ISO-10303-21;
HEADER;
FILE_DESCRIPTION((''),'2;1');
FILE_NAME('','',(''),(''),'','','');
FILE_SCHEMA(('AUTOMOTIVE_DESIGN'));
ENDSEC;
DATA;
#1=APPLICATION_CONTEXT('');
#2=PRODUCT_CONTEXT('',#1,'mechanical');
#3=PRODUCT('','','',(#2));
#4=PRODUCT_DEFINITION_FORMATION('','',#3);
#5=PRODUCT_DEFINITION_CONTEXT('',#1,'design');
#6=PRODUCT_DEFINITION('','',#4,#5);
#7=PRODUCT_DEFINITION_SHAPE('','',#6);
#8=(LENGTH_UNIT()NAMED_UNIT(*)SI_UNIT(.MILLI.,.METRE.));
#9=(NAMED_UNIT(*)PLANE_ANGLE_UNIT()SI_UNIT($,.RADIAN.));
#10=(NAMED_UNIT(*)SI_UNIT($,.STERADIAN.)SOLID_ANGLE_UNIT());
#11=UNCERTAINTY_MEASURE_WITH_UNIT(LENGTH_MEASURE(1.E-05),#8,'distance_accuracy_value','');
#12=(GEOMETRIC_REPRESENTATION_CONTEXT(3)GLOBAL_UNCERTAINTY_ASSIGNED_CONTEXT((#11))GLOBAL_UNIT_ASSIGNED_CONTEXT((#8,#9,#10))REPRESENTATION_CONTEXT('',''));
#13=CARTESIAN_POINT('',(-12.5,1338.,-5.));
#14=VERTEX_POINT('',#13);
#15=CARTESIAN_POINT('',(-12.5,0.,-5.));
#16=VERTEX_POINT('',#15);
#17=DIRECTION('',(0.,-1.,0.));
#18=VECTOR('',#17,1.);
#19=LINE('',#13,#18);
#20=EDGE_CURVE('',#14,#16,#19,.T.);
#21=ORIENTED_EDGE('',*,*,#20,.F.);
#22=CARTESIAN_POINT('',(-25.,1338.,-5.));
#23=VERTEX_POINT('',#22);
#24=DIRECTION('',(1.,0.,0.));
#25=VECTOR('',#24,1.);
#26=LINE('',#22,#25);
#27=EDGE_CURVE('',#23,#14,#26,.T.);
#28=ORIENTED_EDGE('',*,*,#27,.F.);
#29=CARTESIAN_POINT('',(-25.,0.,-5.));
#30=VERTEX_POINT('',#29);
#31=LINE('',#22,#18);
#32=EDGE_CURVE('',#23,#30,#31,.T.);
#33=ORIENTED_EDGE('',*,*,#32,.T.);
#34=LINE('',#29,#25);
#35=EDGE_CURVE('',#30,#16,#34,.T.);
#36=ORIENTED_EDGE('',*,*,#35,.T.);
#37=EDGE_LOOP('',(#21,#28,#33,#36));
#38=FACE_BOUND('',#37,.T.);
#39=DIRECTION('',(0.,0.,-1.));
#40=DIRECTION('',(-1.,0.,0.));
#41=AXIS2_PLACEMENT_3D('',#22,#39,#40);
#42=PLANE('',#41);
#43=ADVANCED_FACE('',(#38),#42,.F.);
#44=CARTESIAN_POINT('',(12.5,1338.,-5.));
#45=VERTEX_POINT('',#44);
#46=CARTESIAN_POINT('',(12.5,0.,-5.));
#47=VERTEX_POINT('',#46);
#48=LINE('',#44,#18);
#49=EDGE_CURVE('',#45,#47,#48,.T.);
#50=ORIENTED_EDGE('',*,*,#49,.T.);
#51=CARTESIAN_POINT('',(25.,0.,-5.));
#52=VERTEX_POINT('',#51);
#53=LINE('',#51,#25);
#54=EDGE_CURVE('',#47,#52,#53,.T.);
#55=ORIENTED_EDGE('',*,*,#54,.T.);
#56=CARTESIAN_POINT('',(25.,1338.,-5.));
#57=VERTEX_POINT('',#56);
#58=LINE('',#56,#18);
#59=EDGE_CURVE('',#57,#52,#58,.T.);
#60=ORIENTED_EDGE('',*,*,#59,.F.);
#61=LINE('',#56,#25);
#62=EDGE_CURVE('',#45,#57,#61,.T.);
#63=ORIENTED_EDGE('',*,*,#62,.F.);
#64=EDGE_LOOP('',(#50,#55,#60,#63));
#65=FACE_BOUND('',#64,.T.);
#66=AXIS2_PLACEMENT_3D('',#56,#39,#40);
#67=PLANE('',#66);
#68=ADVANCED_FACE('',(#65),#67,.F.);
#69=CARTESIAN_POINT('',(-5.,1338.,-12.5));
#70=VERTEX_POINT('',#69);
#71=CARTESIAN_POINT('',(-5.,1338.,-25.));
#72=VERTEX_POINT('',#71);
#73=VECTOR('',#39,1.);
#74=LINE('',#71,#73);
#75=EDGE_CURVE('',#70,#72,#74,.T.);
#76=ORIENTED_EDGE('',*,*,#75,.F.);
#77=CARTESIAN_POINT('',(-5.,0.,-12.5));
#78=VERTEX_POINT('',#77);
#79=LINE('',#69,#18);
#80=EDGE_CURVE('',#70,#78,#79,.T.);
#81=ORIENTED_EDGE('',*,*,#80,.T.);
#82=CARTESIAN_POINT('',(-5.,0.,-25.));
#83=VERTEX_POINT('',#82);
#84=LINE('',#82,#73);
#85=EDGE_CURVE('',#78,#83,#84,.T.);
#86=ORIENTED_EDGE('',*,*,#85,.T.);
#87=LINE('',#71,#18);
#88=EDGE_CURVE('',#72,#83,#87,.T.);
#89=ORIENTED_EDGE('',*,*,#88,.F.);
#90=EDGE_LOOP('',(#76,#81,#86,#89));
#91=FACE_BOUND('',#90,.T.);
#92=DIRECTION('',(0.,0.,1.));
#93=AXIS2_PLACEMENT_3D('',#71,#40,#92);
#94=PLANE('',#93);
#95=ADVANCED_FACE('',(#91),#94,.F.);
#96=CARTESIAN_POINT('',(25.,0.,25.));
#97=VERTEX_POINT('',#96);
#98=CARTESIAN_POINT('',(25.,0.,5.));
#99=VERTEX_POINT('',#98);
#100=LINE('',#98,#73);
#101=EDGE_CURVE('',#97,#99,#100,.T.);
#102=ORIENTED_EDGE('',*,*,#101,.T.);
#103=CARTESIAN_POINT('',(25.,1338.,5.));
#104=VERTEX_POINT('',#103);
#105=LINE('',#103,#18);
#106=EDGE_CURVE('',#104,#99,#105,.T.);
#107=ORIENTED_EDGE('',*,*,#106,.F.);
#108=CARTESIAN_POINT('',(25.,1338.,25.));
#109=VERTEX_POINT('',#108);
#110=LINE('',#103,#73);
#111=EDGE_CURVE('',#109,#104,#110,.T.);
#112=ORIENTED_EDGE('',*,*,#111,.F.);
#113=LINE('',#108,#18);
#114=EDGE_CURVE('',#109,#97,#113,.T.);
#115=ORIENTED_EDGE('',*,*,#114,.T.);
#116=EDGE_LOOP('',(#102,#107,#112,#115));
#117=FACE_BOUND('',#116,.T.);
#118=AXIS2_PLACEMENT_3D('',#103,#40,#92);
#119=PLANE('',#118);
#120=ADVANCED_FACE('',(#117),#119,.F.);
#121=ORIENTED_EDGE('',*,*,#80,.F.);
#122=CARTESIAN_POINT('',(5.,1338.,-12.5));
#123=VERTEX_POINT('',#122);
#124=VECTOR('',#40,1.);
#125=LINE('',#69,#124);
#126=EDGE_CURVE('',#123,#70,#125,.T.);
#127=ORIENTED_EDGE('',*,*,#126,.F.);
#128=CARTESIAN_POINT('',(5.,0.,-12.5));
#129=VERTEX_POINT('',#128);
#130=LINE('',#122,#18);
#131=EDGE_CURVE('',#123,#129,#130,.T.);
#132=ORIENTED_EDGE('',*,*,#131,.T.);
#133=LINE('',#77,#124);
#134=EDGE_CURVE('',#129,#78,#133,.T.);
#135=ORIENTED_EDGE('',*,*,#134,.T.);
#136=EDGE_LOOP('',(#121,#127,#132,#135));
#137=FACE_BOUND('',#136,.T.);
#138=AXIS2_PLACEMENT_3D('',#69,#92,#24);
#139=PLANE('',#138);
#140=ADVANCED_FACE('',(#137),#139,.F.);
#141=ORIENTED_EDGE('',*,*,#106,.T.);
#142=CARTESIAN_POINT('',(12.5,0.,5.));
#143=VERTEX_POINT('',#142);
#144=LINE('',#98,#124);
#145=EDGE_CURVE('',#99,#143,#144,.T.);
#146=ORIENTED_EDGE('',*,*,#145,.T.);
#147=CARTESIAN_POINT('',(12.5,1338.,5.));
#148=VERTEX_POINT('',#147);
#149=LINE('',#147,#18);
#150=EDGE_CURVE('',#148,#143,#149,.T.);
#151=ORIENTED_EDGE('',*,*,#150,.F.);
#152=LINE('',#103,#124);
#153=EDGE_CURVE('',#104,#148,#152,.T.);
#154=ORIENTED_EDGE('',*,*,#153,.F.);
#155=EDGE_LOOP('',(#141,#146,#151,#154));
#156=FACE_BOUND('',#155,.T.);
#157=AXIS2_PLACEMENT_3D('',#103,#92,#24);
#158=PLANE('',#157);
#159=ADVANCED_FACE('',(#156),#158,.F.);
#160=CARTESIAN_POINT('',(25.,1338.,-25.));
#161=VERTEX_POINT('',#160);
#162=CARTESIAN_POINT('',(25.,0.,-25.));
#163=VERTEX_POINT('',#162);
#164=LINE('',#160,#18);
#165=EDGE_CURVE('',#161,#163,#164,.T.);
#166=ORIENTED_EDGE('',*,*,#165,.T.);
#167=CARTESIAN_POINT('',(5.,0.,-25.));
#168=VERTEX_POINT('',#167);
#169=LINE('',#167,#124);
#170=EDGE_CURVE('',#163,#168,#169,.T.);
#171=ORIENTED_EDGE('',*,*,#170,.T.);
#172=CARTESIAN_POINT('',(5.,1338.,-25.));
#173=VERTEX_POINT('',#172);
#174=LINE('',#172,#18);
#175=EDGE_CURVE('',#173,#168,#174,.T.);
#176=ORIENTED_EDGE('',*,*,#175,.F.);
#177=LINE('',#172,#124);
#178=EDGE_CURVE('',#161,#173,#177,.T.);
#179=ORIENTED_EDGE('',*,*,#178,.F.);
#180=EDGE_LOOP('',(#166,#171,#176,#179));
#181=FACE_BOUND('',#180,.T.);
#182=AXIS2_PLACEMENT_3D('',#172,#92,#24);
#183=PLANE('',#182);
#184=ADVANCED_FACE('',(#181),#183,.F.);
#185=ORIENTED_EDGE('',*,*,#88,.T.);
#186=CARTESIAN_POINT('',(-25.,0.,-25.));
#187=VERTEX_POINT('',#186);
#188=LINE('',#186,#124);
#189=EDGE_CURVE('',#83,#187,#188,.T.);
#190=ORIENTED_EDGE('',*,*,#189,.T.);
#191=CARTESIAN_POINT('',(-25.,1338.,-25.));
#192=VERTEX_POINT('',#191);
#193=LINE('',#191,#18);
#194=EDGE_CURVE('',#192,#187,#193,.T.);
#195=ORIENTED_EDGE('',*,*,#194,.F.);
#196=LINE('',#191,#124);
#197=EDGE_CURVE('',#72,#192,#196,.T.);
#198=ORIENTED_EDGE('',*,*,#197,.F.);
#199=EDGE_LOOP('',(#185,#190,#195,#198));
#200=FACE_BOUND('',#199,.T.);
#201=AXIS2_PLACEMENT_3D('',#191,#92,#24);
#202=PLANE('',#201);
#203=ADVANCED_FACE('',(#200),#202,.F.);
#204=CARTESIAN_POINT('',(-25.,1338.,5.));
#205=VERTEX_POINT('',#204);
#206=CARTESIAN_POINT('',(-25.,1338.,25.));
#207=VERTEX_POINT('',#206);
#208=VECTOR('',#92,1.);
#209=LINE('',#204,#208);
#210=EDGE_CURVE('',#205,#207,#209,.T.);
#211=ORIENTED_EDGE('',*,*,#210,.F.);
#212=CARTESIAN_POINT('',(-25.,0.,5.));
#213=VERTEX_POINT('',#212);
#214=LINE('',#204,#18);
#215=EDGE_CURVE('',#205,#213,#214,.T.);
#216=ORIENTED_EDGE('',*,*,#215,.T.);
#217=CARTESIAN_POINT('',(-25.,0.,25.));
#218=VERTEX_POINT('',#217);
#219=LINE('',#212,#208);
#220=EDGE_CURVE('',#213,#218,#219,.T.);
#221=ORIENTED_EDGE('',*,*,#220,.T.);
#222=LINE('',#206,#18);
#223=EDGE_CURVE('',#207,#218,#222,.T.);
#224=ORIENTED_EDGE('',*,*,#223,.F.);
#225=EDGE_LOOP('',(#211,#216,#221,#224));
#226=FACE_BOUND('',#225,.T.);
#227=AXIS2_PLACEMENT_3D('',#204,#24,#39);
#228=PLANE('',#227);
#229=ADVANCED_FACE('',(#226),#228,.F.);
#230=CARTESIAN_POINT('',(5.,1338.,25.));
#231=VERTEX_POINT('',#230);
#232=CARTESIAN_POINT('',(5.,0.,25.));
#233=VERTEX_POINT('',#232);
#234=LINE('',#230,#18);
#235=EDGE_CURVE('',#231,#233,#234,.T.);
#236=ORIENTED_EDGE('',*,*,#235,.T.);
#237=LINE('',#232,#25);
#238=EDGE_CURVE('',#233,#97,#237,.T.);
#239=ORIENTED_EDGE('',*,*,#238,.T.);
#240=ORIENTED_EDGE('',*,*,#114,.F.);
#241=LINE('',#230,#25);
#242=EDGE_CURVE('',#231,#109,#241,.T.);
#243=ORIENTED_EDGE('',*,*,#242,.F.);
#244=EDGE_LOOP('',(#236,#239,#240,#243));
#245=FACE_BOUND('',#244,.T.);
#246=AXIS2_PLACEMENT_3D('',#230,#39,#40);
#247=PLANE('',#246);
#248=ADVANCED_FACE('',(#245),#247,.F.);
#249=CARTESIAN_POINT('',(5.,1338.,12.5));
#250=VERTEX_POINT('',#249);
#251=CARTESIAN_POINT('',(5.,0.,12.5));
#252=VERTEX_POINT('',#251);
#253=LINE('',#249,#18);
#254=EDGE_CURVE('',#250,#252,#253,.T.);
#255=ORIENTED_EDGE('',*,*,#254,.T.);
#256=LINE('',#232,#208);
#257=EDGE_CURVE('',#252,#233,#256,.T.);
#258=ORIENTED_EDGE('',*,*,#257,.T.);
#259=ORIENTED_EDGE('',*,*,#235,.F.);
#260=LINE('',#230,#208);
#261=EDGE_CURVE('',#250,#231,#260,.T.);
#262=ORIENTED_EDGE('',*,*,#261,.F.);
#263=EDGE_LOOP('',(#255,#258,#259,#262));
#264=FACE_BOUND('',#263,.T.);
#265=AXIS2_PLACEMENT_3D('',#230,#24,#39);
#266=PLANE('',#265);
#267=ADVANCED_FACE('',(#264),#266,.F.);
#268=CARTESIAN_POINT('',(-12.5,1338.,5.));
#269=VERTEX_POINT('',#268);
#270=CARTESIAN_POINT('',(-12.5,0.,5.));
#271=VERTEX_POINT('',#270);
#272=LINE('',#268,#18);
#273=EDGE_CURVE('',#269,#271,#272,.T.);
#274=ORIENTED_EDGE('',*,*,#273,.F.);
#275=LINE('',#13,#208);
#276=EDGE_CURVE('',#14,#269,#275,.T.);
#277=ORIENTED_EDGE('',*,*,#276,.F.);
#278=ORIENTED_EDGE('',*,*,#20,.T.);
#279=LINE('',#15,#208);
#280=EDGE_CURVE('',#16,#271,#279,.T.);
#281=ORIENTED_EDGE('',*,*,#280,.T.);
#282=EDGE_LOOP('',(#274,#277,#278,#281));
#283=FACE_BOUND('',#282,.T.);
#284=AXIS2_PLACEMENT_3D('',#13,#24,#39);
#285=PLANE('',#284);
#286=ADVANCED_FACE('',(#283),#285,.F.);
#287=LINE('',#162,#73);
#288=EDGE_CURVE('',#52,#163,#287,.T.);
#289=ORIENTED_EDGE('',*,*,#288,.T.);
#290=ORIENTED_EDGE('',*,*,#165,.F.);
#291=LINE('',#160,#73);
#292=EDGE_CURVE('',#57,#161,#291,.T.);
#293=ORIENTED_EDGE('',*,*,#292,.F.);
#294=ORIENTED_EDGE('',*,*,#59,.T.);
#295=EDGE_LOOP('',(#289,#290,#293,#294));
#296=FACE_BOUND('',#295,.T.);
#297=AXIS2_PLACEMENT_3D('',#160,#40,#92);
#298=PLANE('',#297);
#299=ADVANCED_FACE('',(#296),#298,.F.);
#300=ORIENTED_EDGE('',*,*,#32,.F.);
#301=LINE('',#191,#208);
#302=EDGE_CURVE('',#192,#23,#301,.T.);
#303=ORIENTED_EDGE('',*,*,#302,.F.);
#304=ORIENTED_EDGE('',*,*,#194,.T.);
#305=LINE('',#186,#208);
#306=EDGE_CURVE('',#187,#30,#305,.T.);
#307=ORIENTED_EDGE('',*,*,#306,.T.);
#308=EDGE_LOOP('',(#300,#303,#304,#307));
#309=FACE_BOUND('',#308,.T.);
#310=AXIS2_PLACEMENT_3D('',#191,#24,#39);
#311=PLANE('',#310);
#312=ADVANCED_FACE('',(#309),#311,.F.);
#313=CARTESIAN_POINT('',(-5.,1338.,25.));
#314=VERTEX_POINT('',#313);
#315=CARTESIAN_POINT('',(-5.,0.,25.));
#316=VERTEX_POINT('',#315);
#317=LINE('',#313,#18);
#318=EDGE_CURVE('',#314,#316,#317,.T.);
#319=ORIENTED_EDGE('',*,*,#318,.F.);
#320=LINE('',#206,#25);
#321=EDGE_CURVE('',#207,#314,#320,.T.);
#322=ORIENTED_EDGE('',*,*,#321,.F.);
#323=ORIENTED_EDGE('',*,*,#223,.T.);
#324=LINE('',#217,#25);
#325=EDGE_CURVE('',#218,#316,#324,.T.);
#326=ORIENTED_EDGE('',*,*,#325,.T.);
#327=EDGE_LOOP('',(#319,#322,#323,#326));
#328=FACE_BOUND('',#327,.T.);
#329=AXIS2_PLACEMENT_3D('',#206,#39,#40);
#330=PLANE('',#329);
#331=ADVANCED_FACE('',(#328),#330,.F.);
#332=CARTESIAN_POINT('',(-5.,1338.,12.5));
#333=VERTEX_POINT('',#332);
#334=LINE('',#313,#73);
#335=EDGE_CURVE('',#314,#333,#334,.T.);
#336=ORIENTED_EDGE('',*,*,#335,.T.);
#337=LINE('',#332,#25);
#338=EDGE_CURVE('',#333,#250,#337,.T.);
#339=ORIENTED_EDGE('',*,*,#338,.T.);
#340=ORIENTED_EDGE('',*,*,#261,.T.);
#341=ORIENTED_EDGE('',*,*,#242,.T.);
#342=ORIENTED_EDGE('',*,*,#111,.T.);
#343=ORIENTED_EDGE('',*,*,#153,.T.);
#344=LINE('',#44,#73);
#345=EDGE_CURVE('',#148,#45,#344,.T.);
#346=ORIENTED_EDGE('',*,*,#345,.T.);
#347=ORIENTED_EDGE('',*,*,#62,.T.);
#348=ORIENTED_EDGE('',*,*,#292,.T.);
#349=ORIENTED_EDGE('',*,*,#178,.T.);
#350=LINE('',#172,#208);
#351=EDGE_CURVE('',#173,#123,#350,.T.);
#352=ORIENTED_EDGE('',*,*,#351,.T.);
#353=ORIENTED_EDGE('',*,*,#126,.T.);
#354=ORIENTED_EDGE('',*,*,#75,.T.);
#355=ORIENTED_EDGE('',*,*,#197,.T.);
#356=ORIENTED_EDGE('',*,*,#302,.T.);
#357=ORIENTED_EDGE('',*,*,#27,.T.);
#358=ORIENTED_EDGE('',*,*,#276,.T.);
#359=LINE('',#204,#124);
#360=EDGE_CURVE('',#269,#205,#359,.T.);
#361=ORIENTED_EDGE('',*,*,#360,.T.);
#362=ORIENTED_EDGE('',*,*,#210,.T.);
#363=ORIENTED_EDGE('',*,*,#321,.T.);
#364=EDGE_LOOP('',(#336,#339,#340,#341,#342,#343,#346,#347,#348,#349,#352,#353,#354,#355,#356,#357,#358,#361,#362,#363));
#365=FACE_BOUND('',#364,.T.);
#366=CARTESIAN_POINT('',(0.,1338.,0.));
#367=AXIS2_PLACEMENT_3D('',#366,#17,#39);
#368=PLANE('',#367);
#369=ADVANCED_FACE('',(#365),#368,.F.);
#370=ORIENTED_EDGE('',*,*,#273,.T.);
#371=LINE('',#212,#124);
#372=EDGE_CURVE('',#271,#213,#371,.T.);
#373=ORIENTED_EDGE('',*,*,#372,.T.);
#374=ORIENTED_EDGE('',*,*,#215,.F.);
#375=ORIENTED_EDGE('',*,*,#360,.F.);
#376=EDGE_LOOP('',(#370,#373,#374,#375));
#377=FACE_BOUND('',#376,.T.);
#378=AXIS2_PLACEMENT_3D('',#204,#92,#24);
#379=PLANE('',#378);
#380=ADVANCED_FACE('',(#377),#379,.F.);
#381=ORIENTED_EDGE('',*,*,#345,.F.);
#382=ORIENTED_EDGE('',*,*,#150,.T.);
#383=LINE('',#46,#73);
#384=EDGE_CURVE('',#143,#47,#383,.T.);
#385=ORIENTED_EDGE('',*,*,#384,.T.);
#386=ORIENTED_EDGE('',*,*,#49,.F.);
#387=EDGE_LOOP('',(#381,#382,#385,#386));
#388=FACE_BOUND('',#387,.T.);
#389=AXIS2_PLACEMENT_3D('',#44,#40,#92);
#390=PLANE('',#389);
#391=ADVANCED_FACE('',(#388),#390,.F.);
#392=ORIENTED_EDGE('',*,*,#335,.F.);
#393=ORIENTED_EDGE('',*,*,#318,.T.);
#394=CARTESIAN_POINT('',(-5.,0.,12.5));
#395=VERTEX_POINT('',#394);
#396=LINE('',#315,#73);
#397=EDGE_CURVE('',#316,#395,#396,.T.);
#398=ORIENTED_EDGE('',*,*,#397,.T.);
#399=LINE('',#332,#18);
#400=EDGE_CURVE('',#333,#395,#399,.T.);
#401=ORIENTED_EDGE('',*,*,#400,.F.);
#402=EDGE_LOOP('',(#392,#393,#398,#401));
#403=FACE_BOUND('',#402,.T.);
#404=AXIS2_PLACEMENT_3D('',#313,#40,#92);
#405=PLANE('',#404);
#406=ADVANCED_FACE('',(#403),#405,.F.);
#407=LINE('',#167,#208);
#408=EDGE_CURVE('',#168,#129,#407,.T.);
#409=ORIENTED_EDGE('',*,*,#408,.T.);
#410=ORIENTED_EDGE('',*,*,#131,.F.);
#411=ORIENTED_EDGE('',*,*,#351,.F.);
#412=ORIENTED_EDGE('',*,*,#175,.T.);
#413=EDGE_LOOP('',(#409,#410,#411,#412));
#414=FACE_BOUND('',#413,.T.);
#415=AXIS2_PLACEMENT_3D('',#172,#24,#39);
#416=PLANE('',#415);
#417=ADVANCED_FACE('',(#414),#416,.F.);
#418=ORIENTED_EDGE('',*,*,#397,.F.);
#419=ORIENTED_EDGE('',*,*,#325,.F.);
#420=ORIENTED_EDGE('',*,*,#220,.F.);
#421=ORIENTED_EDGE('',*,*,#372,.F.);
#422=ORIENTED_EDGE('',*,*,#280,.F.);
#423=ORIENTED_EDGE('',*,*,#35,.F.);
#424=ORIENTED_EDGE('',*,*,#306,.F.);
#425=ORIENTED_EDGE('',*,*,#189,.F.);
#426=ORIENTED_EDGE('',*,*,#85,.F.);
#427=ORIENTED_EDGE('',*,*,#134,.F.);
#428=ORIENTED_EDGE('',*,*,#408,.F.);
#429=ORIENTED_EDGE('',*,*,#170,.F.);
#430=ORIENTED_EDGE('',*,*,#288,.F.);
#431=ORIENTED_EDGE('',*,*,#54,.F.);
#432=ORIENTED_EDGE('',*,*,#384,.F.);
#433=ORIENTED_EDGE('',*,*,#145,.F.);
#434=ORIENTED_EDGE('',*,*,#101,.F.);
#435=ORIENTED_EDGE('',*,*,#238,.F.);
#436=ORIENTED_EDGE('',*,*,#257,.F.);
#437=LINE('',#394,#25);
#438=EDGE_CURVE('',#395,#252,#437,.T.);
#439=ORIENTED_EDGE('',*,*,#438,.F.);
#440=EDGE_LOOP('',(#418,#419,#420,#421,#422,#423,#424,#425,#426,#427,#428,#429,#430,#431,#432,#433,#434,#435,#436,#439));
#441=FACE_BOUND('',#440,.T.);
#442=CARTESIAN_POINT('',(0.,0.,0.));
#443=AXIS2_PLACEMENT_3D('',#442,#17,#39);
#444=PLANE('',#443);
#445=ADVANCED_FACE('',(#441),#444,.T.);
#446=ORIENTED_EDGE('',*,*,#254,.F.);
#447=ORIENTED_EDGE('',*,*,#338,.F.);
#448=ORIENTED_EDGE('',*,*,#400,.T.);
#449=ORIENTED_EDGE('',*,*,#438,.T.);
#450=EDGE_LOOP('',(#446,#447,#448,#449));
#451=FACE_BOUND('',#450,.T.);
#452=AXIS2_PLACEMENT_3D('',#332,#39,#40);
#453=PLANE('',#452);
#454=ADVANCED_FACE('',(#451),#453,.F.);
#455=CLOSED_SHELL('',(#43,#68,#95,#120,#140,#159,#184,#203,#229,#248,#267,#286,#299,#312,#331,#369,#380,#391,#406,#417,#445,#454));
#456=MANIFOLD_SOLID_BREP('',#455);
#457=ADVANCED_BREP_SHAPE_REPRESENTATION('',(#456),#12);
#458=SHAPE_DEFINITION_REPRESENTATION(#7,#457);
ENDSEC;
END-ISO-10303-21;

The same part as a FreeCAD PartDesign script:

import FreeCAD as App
import Part
import Sketcher


def add_polygon(sketch, points):
    """Adds a closed chain of lines whose ends are joined by coincident constraints."""
    first, n = sketch.GeometryCount, len(points)
    for a, b in zip(points, points[1:] + points[:1]):
        sketch.addGeometry(Part.LineSegment(App.Vector(*a, 0), App.Vector(*b, 0)), False)
    for i in range(n):
        sketch.addConstraint(Sketcher.Constraint("Coincident", first + i, 2, first + (i + 1) % n, 1))

doc = App.newDocument("Part")
body = doc.addObject("PartDesign::Body", "Body")

# Sketch on XZ plane
sketch1 = body.newObject("Sketcher::SketchObject", "Sketch")
sketch1.AttachmentSupport = (doc.getObject("XZ_Plane"), [""])
sketch1.MapMode = "FlatFace"
add_polygon(sketch1, [(-5, -25), (-25, -25), (-25, -5), (-12.5, -5), (-12.5, 5), (-25, 5), (-25, 25), (-5, 25), (-5, 12.5), (5, 12.5), (5, 25), (25, 25), (25, 5), (12.5, 5), (12.5, -5), (25, -5), (25, -25), (5, -25), (5, -12.5), (-5, -12.5)])  # lines 0-19
sketch1.addConstraint([
    Sketcher.Constraint("Horizontal", 0),
    Sketcher.Constraint("Vertical", 1),
    Sketcher.Constraint("Horizontal", 2),
    Sketcher.Constraint("Vertical", 3),
    Sketcher.Constraint("Horizontal", 4),
    Sketcher.Constraint("Vertical", 5),
    Sketcher.Constraint("Horizontal", 6),
    Sketcher.Constraint("Vertical", 7),
    Sketcher.Constraint("Horizontal", 8),
    Sketcher.Constraint("Vertical", 9),
    Sketcher.Constraint("Horizontal", 10),
    Sketcher.Constraint("Vertical", 11),
    Sketcher.Constraint("Horizontal", 12),
    Sketcher.Constraint("Vertical", 13),
    Sketcher.Constraint("Horizontal", 14),
    Sketcher.Constraint("Vertical", 15),
    Sketcher.Constraint("Horizontal", 16),
    Sketcher.Constraint("Vertical", 17),
    Sketcher.Constraint("Horizontal", 18),
    Sketcher.Constraint("Vertical", 19),
    Sketcher.Constraint("Symmetric", 0, 2, 10, 2, -1, 1),
    Sketcher.Constraint("Symmetric", 2, 2, 12, 2, -1, 1),
    Sketcher.Constraint("Symmetric", 4, 2, 14, 2, -1, 1),
    Sketcher.Constraint("Symmetric", 6, 2, 16, 2, -1, 1),
    Sketcher.Constraint("Symmetric", 8, 2, 18, 2, -1, 1),
    Sketcher.Constraint("Symmetric", 6, 2, 9, 2, -2),
    Sketcher.Constraint("Symmetric", 4, 2, 11, 2, -2),
    Sketcher.Constraint("Equal", 16, 1),
    Sketcher.Constraint("Equal", 18, 3),
    Sketcher.Constraint("Equal", 14, 7),
    Sketcher.Constraint("DistanceX", 0, 2, 0, 1, 20.0),
    Sketcher.Constraint("DistanceX", 8, 1, 8, 2, 10.0),
    Sketcher.Constraint("DistanceX", 2, 1, 2, 2, 12.5),
])
pad1 = body.newObject("PartDesign::Pad", "Pad")
pad1.Profile = sketch1
pad1.Length = 1338
pad1.Reversed = True

# Sketch on XZ plane
sketch2 = body.newObject("Sketcher::SketchObject", "Sketch001")
sketch2.AttachmentSupport = (doc.getObject("XZ_Plane"), [""])
sketch2.MapMode = "FlatFace"
add_polygon(sketch2, [(-5, -25), (-25, -25), (-25, -5), (-12.5, -5), (-12.5, 5), (-25, 5), (-25, 25), (-5, 25), (-5, 12.5), (5, 12.5), (5, 25), (25, 25), (25, 5), (12.5, 5), (12.5, -5), (25, -5), (25, -25), (5, -25), (5, -12.5), (-5, -12.5)])  # lines 0-19
sketch2.addConstraint([
    Sketcher.Constraint("Horizontal", 0),
    Sketcher.Constraint("Vertical", 1),
    Sketcher.Constraint("Horizontal", 2),
    Sketcher.Constraint("Vertical", 3),
    Sketcher.Constraint("Horizontal", 4),
    Sketcher.Constraint("Vertical", 5),
    Sketcher.Constraint("Horizontal", 6),
    Sketcher.Constraint("Vertical", 7),
    Sketcher.Constraint("Horizontal", 8),
    Sketcher.Constraint("Vertical", 9),
    Sketcher.Constraint("Horizontal", 10),
    Sketcher.Constraint("Vertical", 11),
    Sketcher.Constraint("Horizontal", 12),
    Sketcher.Constraint("Vertical", 13),
    Sketcher.Constraint("Horizontal", 14),
    Sketcher.Constraint("Vertical", 15),
    Sketcher.Constraint("Horizontal", 16),
    Sketcher.Constraint("Vertical", 17),
    Sketcher.Constraint("Horizontal", 18),
    Sketcher.Constraint("Vertical", 19),
    Sketcher.Constraint("Symmetric", 0, 2, 10, 2, -1, 1),
    Sketcher.Constraint("Symmetric", 2, 2, 12, 2, -1, 1),
    Sketcher.Constraint("Symmetric", 4, 2, 14, 2, -1, 1),
    Sketcher.Constraint("Symmetric", 6, 2, 16, 2, -1, 1),
    Sketcher.Constraint("Symmetric", 8, 2, 18, 2, -1, 1),
    Sketcher.Constraint("Symmetric", 6, 2, 9, 2, -2),
    Sketcher.Constraint("Symmetric", 4, 2, 11, 2, -2),
    Sketcher.Constraint("Equal", 16, 1),
    Sketcher.Constraint("Equal", 18, 3),
    Sketcher.Constraint("Equal", 14, 7),
    Sketcher.Constraint("DistanceX", 0, 2, 0, 1, 20.0),
    Sketcher.Constraint("DistanceX", 8, 1, 8, 2, 10.0),
    Sketcher.Constraint("DistanceX", 2, 1, 2, 2, 12.5),
])
pad2 = body.newObject("PartDesign::Pad", "Pad001")
pad2.Profile = sketch2
pad2.Length = 10
pad2.Reversed = True

doc.recompute()
